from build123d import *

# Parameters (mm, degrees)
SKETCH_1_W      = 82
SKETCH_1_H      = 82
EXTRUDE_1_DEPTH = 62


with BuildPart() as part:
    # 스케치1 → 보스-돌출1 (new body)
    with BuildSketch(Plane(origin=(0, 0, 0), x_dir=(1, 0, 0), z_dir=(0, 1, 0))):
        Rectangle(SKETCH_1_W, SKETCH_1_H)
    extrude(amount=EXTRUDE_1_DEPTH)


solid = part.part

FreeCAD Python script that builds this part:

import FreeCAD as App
import Part
import Sketcher


def add_polygon(sketch, points):
    """Adds a closed chain of lines whose ends are joined by coincident constraints."""
    first, n = sketch.GeometryCount, len(points)
    for a, b in zip(points, points[1:] + points[:1]):
        sketch.addGeometry(Part.LineSegment(App.Vector(*a, 0), App.Vector(*b, 0)), False)
    for i in range(n):
        sketch.addConstraint(Sketcher.Constraint("Coincident", first + i, 2, first + (i + 1) % n, 1))

doc = App.newDocument("Part")
body = doc.addObject("PartDesign::Body", "Body")

sketch1 = body.newObject("Sketcher::SketchObject", "Sketch")
sketch1.AttachmentSupport = (doc.getObject("XZ_Plane"), [""])
sketch1.MapMode = "FlatFace"
add_polygon(sketch1, [(-41, -41), (-41, 41), (41, 41), (41, -41)])
sketch1.addConstraint([
    Sketcher.Constraint("Vertical", 0),
    Sketcher.Constraint("Horizontal", 1),
    Sketcher.Constraint("Vertical", 2),
    Sketcher.Constraint("Horizontal", 3),
    Sketcher.Constraint("Symmetric", 0, 2, 2, 2, -1, 1),
    Sketcher.Constraint("Equal", 3, 0),
    Sketcher.Constraint("DistanceX", 1, 1, 1, 2, 82.0),
])
pad1 = body.newObject("PartDesign::Pad", "Pad")
pad1.Profile = sketch1
pad1.Length = 62
pad1.Reversed = True

doc.recompute()
